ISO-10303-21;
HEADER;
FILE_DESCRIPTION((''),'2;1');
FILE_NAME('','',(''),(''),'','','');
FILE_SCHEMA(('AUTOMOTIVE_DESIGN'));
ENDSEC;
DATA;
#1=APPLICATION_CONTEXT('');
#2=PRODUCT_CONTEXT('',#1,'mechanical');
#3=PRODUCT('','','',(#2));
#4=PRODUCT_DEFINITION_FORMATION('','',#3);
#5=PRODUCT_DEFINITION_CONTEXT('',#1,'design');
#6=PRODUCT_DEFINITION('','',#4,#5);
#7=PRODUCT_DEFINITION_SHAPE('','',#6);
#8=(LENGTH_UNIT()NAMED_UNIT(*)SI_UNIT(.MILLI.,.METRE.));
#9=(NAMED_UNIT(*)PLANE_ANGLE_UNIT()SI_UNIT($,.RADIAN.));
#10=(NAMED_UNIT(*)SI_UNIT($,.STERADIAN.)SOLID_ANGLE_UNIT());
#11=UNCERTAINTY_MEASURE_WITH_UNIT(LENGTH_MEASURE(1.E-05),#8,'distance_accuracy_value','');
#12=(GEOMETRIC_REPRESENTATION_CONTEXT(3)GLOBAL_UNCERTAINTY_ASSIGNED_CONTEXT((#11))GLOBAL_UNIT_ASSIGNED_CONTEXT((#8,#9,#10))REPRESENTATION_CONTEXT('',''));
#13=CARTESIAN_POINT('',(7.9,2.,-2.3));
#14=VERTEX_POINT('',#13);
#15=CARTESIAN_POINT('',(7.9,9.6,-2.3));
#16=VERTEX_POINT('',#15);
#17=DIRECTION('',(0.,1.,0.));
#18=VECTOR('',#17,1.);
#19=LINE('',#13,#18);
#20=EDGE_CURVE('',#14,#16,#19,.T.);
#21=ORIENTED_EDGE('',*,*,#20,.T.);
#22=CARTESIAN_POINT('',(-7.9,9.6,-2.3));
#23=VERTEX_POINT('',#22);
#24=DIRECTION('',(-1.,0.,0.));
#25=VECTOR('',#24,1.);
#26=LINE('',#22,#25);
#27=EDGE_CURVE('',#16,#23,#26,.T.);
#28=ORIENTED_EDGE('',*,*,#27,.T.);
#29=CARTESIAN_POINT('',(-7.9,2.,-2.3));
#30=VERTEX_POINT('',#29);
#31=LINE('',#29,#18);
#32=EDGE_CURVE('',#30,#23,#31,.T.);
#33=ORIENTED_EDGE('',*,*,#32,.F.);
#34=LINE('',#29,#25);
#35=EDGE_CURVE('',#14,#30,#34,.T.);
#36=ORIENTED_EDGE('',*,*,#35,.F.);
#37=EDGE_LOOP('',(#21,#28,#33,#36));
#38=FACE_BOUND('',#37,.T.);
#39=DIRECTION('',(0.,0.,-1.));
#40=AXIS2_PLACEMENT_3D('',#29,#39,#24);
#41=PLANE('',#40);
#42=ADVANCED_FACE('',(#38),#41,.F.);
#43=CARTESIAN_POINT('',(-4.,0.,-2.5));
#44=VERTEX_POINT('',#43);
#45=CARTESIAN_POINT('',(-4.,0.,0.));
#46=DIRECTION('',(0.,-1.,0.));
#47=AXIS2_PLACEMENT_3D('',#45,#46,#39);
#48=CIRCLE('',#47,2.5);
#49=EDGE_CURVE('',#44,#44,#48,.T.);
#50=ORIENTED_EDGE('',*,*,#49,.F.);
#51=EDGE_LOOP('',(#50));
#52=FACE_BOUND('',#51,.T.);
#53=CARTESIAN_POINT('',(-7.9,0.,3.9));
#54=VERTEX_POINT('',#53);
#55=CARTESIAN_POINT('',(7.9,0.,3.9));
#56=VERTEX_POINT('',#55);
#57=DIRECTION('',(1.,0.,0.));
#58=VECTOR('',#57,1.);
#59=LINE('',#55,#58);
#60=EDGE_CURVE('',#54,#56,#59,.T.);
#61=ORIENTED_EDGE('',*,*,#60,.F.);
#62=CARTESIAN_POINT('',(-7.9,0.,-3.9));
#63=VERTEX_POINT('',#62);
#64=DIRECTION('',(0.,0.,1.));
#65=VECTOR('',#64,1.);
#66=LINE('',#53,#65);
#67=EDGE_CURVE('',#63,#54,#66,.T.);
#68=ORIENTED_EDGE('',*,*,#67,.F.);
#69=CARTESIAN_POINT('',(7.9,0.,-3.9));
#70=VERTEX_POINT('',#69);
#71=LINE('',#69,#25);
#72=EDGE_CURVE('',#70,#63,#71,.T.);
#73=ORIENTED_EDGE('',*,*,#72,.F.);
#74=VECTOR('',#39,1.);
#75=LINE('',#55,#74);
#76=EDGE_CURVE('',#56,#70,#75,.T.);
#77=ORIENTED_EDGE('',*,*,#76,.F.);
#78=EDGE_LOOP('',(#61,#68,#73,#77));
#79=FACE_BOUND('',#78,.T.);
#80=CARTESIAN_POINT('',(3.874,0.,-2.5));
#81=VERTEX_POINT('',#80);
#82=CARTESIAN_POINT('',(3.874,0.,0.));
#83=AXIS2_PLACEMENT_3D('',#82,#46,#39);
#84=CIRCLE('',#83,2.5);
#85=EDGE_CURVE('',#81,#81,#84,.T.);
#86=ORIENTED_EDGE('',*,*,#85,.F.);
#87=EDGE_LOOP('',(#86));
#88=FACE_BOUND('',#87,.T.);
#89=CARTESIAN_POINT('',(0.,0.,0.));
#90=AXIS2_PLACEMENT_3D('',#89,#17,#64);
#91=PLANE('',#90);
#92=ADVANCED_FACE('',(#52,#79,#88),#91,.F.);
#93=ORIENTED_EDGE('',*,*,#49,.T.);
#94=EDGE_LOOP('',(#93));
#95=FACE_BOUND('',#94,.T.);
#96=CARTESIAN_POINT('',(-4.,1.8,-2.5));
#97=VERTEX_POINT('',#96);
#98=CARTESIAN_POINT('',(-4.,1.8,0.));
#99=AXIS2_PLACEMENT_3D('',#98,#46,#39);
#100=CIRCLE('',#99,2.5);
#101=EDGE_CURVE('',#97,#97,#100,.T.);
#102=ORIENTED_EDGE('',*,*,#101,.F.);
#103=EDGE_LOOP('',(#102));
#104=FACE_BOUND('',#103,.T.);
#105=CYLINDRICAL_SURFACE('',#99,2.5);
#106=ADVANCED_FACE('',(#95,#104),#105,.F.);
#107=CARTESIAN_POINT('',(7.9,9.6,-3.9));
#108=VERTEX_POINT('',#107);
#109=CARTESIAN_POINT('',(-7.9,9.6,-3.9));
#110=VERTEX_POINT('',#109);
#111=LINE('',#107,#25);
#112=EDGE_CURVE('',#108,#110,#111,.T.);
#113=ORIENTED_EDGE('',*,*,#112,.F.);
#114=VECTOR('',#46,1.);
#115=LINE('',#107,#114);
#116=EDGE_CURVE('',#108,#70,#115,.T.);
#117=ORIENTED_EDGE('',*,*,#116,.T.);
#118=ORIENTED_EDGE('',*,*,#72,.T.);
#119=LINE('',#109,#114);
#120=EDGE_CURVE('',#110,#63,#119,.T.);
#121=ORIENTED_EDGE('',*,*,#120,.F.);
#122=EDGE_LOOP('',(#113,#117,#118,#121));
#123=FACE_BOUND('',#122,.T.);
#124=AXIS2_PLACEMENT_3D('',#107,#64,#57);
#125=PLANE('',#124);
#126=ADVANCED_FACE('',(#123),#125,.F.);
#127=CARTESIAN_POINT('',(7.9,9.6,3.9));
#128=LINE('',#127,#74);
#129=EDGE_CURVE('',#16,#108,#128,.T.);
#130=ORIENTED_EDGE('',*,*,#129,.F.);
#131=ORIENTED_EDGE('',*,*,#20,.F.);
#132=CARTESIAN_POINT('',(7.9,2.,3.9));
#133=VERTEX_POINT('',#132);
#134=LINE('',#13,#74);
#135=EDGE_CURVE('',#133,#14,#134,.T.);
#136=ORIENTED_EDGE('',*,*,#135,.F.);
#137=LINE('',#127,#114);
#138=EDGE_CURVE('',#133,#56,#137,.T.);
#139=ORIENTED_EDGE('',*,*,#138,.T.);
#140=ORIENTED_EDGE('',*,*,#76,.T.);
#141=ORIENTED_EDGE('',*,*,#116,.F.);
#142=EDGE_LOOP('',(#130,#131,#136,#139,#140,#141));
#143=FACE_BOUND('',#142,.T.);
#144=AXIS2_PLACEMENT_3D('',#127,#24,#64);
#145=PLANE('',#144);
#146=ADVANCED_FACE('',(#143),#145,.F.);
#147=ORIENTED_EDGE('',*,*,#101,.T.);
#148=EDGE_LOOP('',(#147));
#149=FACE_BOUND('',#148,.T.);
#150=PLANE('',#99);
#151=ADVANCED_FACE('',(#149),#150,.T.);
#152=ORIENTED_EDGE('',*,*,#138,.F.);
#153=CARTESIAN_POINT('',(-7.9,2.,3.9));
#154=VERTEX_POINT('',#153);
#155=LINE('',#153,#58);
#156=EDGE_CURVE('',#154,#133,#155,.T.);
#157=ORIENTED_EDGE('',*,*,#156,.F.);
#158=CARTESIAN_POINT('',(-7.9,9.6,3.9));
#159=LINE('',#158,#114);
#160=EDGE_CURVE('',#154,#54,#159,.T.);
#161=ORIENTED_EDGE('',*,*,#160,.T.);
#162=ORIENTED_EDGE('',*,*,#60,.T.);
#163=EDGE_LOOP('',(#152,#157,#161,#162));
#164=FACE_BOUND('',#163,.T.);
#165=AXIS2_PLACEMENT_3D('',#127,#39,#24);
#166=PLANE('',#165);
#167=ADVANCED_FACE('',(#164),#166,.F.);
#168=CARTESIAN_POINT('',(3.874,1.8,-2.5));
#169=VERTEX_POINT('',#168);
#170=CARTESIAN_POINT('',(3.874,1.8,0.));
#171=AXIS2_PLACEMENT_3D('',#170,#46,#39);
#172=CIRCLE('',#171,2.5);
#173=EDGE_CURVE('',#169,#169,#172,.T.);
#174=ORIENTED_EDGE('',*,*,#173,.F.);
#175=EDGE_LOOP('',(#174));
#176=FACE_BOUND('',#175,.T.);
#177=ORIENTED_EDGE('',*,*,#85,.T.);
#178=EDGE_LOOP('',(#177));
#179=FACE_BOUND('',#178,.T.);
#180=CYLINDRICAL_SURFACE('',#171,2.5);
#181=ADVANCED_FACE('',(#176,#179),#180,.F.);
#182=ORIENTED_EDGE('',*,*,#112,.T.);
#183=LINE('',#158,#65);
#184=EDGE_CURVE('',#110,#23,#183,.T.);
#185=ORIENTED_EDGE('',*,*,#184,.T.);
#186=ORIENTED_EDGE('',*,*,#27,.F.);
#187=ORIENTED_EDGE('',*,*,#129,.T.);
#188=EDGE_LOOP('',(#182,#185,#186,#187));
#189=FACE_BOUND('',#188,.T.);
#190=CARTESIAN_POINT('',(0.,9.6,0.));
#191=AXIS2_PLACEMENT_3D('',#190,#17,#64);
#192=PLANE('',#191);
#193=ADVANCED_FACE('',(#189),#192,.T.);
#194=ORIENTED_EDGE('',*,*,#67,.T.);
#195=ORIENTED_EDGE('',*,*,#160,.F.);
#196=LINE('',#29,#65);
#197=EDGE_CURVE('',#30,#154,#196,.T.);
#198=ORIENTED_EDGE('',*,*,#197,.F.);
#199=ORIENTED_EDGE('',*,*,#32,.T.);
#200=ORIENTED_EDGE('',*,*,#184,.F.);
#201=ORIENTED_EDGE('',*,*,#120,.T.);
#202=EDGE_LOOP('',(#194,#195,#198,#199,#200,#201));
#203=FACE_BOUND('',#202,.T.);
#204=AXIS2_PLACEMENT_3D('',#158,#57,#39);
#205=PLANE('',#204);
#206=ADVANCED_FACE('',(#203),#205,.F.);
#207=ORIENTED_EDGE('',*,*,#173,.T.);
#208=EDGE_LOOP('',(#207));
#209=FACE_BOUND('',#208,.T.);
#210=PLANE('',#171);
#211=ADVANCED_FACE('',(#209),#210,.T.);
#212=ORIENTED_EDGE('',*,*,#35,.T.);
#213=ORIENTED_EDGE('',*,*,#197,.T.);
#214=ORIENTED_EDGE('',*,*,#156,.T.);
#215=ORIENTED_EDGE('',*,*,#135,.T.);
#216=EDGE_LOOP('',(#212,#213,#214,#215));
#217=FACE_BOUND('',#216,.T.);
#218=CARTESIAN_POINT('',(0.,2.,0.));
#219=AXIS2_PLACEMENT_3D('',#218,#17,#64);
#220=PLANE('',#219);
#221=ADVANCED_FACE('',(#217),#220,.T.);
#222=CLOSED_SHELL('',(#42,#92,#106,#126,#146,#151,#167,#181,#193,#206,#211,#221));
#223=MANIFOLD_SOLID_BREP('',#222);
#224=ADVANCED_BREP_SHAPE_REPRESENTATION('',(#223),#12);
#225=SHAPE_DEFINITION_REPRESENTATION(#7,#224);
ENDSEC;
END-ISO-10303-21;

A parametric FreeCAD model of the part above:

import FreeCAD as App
import Part
import Sketcher
from FreeCAD import Vector

doc = App.newDocument("Part")
body = doc.addObject("PartDesign::Body", "Body")

# Sketch on XZ plane
sketch1 = doc.addObject("Sketcher::SketchObject", "Sketch")
body.addObject(sketch1)
sketch1.AttachmentSupport = (doc.XZ_Plane, [""])
sketch1.MapMode = "FlatFace"
sketch1.addGeometry([
    Part.LineSegment(Vector(-8, -4, 0), Vector(-8, 4, 0)),
    Part.LineSegment(Vector(-8, 4, 0), Vector(8, 4, 0)),
    Part.LineSegment(Vector(8, 4, 0), Vector(8, -4, 0)),
    Part.LineSegment(Vector(8, -4, 0), Vector(-8, -4, 0)),
], False)
sketch1.addConstraint([
    Sketcher.Constraint("Coincident", 0, 2, 1, 1),
    Sketcher.Constraint("Coincident", 1, 2, 2, 1),
    Sketcher.Constraint("Coincident", 2, 2, 3, 1),
    Sketcher.Constraint("Coincident", 3, 2, 0, 1),
    Sketcher.Constraint("Vertical", 0),
    Sketcher.Constraint("Horizontal", 1),
    Sketcher.Constraint("Vertical", 2),
    Sketcher.Constraint("Horizontal", 3),
    Sketcher.Constraint("Symmetric", 0, 2, 2, 2, -1, 1),
    Sketcher.Constraint("DistanceX", 1, 1, 1, 2, 15.8),
    Sketcher.Constraint("DistanceY", 0, 1, 0, 2, 7.8),
])
pad1 = doc.addObject("PartDesign::Pad", "Pad")
body.addObject(pad1)
pad1.Profile = sketch1
pad1.Length = 9.6
pad1.Reversed = True

# Sketch on XZ plane
sketch2 = doc.addObject("Sketcher::SketchObject", "Sketch001")
body.addObject(sketch2)
sketch2.AttachmentSupport = (doc.XZ_Plane, [""])
sketch2.MapMode = "FlatFace"
sketch2.AttachmentOffset = App.Placement(Vector(0, 0, -9.6), App.Rotation())
sketch2.addGeometry([
    Part.LineSegment(Vector(-8, -2, 0), Vector(-8, 4, 0)),
    Part.LineSegment(Vector(-8, 4, 0), Vector(8, 4, 0)),
    Part.LineSegment(Vector(8, 4, 0), Vector(8, -2, 0)),
    Part.LineSegment(Vector(8, -2, 0), Vector(-8, -2, 0)),
], False)
sketch2.addConstraint([
    Sketcher.Constraint("Coincident", 0, 2, 1, 1),
    Sketcher.Constraint("Coincident", 1, 2, 2, 1),
    Sketcher.Constraint("Coincident", 2, 2, 3, 1),
    Sketcher.Constraint("Coincident", 3, 2, 0, 1),
    Sketcher.Constraint("Vertical", 0),
    Sketcher.Constraint("Horizontal", 1),
    Sketcher.Constraint("Vertical", 2),
    Sketcher.Constraint("Horizontal", 3),
    Sketcher.Constraint("DistanceX", 1, 1, 1, 2, 15.8),
    Sketcher.Constraint("DistanceY", 0, 1, 0, 2, 6.2),
    Sketcher.Constraint("DistanceX", 0, 2, -1, 1, 7.9),
    Sketcher.Constraint("DistanceY", -1, 1, 0, 2, 3.9),
])
pocket1 = doc.addObject("PartDesign::Pocket", "Pocket")
body.addObject(pocket1)
pocket1.Profile = sketch2
pocket1.Length = 7.6
pocket1.Reversed = True

# Sketch on XZ plane
sketch3 = doc.addObject("Sketcher::SketchObject", "Sketch002")
body.addObject(sketch3)
sketch3.AttachmentSupport = (doc.XZ_Plane, [""])
sketch3.MapMode = "FlatFace"
sketch3.addGeometry([
    Part.Circle(Vector(-4, 0, 0), Vector(0, 0, 1), 2.5),
    Part.Circle(Vector(3.9, 0, 0), Vector(0, 0, 1), 2.5),
], False)
sketch3.addConstraint([
    Sketcher.Constraint("Equal", 0, 1),
    Sketcher.Constraint("PointOnObject", 0, 3, -1),
    Sketcher.Constraint("PointOnObject", 1, 3, -1),
    Sketcher.Constraint("Diameter", 0, 5.0),
    Sketcher.Constraint("DistanceX", 0, 3, -1, 1, 4.0),
    Sketcher.Constraint("DistanceX", -1, 1, 1, 3, 3.874),
])
pocket2 = doc.addObject("PartDesign::Pocket", "Pocket001")
body.addObject(pocket2)
pocket2.Profile = sketch3
pocket2.Length = 1.8

doc.recompute()
